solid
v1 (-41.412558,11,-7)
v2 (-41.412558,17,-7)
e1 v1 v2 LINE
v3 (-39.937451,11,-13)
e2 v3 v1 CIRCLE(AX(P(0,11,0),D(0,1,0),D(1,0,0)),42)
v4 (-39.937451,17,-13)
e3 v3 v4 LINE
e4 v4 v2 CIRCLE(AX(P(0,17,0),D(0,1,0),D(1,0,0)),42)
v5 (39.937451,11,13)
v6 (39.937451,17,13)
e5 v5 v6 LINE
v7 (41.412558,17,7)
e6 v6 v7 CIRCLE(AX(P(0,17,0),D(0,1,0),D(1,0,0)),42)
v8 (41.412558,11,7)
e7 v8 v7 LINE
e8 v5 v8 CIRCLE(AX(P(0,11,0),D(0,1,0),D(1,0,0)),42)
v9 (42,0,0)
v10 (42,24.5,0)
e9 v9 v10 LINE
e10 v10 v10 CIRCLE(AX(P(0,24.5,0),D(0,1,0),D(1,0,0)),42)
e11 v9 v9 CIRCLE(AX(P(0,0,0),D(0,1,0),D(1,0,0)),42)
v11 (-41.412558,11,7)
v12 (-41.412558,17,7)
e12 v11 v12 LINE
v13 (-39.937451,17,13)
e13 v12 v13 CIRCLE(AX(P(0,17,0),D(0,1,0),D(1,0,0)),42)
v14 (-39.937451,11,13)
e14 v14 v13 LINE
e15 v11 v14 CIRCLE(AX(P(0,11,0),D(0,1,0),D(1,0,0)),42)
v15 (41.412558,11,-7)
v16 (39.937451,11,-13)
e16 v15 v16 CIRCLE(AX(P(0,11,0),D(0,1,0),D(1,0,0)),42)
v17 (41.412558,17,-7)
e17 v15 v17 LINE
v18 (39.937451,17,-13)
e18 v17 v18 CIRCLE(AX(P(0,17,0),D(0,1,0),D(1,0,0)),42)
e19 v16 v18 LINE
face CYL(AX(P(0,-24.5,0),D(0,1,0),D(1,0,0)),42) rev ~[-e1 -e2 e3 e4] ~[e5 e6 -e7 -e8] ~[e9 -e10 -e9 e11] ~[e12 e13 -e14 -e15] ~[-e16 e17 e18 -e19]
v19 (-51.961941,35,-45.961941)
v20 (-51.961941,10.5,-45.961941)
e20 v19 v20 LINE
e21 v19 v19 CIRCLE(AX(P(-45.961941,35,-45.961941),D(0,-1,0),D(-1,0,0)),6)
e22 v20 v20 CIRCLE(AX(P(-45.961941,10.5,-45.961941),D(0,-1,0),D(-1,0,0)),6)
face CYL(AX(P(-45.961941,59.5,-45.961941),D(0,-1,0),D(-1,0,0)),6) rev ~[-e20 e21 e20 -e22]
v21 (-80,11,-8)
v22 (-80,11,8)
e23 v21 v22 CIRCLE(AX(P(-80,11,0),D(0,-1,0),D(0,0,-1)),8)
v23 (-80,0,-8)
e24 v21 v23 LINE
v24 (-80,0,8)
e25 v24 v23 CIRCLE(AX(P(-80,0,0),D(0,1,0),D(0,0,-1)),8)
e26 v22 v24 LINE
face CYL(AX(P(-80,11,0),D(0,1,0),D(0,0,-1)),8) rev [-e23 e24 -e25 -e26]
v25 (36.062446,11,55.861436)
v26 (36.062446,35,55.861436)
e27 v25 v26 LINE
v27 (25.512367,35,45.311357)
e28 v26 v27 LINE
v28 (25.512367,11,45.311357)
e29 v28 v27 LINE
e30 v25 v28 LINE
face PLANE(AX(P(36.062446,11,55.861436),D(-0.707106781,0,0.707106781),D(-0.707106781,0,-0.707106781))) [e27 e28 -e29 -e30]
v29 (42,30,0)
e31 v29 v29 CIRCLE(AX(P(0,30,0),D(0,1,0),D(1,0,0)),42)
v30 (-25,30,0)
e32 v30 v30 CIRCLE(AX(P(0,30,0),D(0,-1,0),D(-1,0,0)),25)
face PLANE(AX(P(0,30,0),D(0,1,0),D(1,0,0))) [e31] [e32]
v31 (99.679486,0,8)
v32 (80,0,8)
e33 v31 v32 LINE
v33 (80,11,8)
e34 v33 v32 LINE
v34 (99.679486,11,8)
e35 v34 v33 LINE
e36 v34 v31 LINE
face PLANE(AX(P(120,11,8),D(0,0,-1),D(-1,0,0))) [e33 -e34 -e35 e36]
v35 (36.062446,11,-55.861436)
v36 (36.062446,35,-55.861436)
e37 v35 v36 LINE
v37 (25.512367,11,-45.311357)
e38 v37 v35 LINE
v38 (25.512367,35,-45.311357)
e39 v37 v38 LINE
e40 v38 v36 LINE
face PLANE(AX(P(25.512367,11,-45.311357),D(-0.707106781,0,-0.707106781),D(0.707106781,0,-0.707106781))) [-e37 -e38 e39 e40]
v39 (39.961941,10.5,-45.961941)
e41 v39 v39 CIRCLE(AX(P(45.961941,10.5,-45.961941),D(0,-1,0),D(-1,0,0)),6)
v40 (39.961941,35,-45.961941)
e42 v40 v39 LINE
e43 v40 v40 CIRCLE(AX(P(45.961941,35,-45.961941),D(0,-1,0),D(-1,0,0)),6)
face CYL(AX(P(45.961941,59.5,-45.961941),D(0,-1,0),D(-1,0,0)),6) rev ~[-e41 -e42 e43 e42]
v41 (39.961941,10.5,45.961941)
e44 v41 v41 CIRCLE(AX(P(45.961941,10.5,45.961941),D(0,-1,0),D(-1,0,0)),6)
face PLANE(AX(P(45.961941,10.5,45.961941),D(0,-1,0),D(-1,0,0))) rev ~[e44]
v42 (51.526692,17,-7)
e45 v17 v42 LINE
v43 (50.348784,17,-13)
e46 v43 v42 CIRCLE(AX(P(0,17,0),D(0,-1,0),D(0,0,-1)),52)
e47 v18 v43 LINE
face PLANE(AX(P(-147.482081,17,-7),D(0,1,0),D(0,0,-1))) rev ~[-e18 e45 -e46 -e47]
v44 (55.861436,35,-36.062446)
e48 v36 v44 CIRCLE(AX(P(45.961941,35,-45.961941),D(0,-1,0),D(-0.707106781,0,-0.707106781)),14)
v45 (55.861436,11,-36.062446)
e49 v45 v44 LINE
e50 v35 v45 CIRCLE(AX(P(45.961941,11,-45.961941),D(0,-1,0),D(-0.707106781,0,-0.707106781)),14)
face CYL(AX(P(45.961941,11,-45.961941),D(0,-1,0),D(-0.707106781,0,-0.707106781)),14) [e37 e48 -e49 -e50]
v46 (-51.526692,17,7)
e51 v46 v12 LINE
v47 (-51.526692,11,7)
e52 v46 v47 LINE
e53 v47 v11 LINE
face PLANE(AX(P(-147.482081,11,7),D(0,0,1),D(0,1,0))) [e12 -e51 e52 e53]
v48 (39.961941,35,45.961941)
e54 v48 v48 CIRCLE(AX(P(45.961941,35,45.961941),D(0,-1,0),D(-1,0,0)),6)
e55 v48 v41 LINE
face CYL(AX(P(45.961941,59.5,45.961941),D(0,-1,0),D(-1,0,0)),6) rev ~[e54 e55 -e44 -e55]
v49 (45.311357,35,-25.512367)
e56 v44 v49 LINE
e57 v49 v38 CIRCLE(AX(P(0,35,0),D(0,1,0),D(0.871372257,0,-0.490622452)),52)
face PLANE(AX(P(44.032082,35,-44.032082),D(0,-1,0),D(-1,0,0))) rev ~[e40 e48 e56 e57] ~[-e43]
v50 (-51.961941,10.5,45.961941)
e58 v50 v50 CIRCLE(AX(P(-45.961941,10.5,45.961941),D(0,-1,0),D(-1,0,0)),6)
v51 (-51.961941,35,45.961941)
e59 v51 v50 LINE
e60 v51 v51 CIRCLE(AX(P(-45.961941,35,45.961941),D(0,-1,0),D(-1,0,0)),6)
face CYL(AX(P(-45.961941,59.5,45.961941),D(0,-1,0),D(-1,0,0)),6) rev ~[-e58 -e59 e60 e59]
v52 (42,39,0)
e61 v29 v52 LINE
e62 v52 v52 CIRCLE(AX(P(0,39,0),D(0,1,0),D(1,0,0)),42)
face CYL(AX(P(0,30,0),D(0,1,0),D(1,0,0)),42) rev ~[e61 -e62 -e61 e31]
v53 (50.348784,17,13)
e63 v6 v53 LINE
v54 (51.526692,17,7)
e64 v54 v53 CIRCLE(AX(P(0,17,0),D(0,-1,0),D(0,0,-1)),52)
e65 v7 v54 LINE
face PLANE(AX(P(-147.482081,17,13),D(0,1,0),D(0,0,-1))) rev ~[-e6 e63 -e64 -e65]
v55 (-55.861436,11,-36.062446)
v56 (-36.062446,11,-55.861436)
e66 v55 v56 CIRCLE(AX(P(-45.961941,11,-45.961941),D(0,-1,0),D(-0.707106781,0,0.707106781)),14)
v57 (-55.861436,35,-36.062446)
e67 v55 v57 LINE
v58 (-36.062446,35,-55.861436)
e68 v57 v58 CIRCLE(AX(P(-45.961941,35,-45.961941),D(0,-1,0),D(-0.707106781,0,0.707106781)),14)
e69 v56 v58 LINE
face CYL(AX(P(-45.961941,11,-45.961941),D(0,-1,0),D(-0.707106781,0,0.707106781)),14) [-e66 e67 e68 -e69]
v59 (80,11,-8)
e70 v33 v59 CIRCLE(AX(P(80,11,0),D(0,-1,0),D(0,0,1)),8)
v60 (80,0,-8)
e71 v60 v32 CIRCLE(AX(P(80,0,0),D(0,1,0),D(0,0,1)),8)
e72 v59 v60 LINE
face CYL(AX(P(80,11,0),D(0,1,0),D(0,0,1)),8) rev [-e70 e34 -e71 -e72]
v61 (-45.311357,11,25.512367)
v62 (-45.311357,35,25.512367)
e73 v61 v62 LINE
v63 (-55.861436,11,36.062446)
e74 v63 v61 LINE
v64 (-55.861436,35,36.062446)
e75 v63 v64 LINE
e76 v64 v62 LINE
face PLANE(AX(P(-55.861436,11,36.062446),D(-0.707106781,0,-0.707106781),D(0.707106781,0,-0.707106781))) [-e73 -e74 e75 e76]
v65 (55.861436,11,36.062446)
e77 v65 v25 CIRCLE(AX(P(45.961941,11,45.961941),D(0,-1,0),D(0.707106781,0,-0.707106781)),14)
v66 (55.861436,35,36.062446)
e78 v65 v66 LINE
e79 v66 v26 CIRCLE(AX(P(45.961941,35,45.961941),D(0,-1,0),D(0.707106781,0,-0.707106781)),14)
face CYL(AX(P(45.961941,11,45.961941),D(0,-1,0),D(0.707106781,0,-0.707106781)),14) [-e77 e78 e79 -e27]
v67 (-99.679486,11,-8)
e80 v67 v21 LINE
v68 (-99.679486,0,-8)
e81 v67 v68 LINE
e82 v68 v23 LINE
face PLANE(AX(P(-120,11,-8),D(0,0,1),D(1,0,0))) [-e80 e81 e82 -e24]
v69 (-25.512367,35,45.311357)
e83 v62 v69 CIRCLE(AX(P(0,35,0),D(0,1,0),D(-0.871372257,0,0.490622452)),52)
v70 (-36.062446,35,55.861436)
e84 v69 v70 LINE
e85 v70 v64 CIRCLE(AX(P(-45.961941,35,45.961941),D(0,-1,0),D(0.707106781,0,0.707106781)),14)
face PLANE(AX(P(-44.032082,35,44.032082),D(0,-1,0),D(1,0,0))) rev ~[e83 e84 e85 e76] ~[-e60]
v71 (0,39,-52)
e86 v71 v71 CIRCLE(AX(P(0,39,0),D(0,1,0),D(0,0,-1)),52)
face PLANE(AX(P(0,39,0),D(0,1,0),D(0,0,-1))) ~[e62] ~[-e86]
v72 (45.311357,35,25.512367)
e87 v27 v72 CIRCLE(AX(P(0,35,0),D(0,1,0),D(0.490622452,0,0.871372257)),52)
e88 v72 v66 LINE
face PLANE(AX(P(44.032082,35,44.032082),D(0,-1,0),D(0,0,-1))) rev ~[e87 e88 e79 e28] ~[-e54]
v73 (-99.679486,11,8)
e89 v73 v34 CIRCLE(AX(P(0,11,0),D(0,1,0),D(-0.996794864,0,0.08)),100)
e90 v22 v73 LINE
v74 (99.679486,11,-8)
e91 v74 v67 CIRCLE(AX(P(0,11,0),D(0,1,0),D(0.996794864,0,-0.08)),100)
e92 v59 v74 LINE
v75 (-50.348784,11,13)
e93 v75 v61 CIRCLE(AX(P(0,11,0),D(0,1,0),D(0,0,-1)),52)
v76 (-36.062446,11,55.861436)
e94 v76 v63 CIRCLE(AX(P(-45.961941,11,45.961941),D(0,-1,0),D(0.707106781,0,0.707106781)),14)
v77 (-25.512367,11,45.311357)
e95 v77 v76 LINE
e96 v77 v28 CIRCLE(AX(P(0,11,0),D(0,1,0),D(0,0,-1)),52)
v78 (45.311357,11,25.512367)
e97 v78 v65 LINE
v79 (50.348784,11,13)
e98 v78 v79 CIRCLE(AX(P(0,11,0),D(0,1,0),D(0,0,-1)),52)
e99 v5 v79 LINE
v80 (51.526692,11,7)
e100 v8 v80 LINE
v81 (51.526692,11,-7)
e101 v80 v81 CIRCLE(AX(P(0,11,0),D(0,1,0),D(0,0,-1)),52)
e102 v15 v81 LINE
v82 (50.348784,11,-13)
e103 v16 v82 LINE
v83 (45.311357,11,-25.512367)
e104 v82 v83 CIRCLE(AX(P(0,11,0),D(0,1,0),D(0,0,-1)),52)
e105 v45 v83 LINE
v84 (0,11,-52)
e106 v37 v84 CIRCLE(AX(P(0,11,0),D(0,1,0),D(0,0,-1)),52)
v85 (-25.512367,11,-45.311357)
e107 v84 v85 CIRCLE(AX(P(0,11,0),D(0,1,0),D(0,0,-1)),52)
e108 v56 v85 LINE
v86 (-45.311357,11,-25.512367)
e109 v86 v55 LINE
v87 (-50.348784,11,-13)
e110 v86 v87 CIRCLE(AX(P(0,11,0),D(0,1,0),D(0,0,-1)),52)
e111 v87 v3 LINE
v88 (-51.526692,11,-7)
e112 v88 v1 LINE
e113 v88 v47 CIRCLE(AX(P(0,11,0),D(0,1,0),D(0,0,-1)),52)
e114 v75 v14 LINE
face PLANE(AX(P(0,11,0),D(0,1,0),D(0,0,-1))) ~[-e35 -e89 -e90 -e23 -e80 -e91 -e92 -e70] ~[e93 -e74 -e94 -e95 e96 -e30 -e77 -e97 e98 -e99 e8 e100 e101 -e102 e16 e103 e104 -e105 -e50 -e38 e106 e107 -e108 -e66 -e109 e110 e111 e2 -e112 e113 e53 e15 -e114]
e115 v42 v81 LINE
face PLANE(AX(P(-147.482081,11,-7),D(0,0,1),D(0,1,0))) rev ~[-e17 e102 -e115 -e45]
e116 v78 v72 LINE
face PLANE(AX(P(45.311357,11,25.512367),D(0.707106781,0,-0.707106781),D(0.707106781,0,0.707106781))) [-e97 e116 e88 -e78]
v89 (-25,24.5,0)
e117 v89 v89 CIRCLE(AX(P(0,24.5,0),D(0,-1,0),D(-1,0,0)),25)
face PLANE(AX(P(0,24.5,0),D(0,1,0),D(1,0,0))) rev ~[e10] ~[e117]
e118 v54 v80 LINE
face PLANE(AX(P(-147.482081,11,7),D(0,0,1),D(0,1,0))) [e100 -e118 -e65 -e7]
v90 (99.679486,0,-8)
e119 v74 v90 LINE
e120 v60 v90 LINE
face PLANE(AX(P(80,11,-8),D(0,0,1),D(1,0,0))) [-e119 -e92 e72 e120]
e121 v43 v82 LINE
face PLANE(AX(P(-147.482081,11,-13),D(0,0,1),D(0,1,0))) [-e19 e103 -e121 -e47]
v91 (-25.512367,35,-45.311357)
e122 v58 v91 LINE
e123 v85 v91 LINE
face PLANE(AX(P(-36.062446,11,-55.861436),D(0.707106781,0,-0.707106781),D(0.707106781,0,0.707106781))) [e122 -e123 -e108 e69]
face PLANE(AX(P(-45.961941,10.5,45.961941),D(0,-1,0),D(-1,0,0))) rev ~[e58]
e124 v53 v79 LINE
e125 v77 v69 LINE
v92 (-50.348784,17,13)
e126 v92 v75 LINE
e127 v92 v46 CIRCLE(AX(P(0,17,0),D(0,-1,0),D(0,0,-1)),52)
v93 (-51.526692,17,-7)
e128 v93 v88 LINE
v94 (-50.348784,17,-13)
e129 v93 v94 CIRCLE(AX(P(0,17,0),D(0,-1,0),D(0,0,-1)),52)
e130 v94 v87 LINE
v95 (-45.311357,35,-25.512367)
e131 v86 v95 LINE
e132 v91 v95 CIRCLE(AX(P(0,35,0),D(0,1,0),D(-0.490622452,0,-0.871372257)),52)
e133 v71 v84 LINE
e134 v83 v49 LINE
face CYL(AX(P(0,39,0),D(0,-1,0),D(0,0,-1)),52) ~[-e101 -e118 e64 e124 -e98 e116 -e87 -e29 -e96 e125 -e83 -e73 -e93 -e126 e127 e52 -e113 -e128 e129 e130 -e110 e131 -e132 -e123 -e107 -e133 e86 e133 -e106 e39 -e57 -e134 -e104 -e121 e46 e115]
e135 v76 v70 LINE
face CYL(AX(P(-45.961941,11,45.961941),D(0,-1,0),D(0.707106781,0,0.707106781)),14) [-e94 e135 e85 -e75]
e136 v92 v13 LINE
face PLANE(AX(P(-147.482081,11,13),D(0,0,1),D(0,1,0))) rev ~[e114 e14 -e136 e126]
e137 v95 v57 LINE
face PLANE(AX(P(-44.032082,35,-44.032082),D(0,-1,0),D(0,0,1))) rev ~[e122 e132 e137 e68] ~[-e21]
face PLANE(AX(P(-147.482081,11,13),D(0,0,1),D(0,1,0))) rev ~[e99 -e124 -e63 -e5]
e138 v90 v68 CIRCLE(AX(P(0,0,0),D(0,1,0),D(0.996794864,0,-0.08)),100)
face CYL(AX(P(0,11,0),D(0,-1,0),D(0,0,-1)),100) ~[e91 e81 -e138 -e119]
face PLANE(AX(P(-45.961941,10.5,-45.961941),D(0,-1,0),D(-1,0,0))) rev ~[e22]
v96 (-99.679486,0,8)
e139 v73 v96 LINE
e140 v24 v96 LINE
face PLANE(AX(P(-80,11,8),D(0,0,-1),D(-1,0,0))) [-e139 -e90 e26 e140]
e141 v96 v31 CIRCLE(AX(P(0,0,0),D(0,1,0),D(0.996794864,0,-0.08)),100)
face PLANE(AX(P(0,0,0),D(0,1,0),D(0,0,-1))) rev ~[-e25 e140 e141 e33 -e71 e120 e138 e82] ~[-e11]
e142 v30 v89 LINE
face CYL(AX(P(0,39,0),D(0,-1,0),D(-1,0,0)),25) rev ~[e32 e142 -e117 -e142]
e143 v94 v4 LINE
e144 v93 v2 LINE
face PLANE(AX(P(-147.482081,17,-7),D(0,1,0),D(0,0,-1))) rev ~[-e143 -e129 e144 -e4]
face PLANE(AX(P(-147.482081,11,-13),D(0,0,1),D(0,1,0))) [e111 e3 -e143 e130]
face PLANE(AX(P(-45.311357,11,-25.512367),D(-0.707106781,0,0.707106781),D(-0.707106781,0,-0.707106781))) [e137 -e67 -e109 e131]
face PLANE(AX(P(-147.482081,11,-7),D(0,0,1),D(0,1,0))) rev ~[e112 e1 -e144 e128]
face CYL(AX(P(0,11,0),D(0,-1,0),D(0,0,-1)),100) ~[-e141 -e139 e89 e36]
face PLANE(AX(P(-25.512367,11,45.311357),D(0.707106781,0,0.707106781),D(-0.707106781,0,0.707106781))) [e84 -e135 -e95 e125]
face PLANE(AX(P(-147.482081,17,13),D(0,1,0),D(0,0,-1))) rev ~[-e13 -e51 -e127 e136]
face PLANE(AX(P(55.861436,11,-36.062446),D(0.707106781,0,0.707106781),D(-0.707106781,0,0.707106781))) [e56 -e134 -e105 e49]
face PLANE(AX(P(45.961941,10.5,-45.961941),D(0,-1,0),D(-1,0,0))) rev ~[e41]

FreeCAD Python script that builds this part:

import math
import FreeCAD as App
import Part
import Sketcher

V = App.Vector
Q = App.Units.Quantity


def add_polygon(sketch, points):
    """Adds a closed chain of lines whose ends are joined by coincident constraints."""
    first, n = sketch.GeometryCount, len(points)
    for a, b in zip(points, points[1:] + points[:1]):
        sketch.addGeometry(Part.LineSegment(App.Vector(*a, 0), App.Vector(*b, 0)), False)
    for i in range(n):
        sketch.addConstraint(Sketcher.Constraint("Coincident", first + i, 2, first + (i + 1) % n, 1))

doc = App.newDocument("Part")
body = doc.addObject("PartDesign::Body", "Body")

sketch1 = body.newObject("Sketcher::SketchObject", "Sketch")
sketch1.AttachmentSupport = (doc.getObject("XY_Plane"), [""])
sketch1.MapMode = "FlatFace"
add_polygon(sketch1, [(0, 0), (0, 39), (-52, 39), (-52, 11), (-100, 11), (-100, 0)])
sketch1.addConstraint(Sketcher.Constraint("Vertical", 0))
sketch1.addConstraint(Sketcher.Constraint("Horizontal", 1))
sketch1.addConstraint(Sketcher.Constraint("Vertical", 2))
sketch1.addConstraint(Sketcher.Constraint("Horizontal", 3))
sketch1.addConstraint(Sketcher.Constraint("Vertical", 4))
sketch1.addConstraint(Sketcher.Constraint("Horizontal", 5))
sketch1.addConstraint(Sketcher.Constraint("Coincident", 5, 2, -1, 1))
sketch1.addConstraint(Sketcher.Constraint("DistanceX", 1, 2, 1, 1, Q("52 mm")))
sketch1.addConstraint(Sketcher.Constraint("DistanceX", 3, 2, 3, 1, Q("48 mm")))
sketch1.addConstraint(Sketcher.Constraint("DistanceY", 0, 1, 0, 2, Q("39 mm")))
sketch1.addConstraint(Sketcher.Constraint("DistanceY", 2, 2, 2, 1, Q("28 mm")))
revolution = body.newObject("PartDesign::Revolution", "Revolution")
revolution.Profile = sketch1
revolution.ReferenceAxis = (sketch1, ["V_Axis"])
revolution.Angle = 360

sketch2 = body.newObject("Sketcher::SketchObject", "Sketch001")
sketch2.AttachmentSupport = (doc.getObject("XZ_Plane"), [""])
sketch2.MapMode = "FlatFace"
sketch2.AttachmentOffset = App.Placement(V(0, 0, -39), App.Rotation())
sketch2.addGeometry(Part.Circle(V(0, 0, 0), V(0, 0, 1), 25), False)
sketch2.addConstraint(Sketcher.Constraint("Coincident", 0, 3, -1, 1))
sketch2.addConstraint(Sketcher.Constraint("Diameter", 0, Q("50 mm")))
doc.recompute()
hole = body.newObject("PartDesign::Hole", "Hole")
hole.Profile = sketch2
hole.ThreadType = "None"
hole.Diameter = 50
hole.DepthType = "ThroughAll"
hole.HoleCutType = "Counterbore"
hole.HoleCutDiameter = 84
hole.HoleCutDepth = 9
hole.Reversed = True

sketch3 = body.newObject("Sketcher::SketchObject", "Sketch002")
sketch3.AttachmentSupport = (doc.getObject("XZ_Plane"), [""])
sketch3.MapMode = "FlatFace"
sketch3.addGeometry(Part.Circle(V(0, 0, 0), V(0, 0, 1), 42), False)
sketch3.addConstraint(Sketcher.Constraint("Coincident", 0, 3, -1, 1))
sketch3.addConstraint(Sketcher.Constraint("Diameter", 0, Q("84 mm")))
doc.recompute()
hole2 = body.newObject("PartDesign::Hole", "Hole001")
hole2.Profile = sketch3
hole2.ThreadType = "None"
hole2.Diameter = 84
hole2.DepthType = "Dimension"
hole2.Depth = 24.5
hole2.DrillPoint = "Flat"

sketch4 = body.newObject("Sketcher::SketchObject", "Sketch003")
sketch4.AttachmentSupport = (doc.getObject("XZ_Plane"), [""])
sketch4.MapMode = "FlatFace"
sketch4.AttachmentOffset = App.Placement(V(0, 0, -11), App.Rotation())
sketch4.addGeometry(Part.LineSegment(V(36, -56, 0), V(26, -45, 0)), False)
sketch4.addGeometry(Part.ArcOfCircle(Part.Circle(V(0, 0, 0), V(0, 0, 1), 52), math.radians(-61), math.radians(-29)), False)
sketch4.addGeometry(Part.LineSegment(V(45, -26, 0), V(56, -36, 0)), False)
sketch4.addGeometry(Part.ArcOfCircle(Part.Circle(V(46, -46, 0), V(0, 0, 1), 14), math.radians(-135), math.radians(45)), False)
sketch4.addConstraint(Sketcher.Constraint("Coincident", 0, 2, 1, 1))
sketch4.addConstraint(Sketcher.Constraint("Coincident", 1, 2, 2, 1))
sketch4.addConstraint(Sketcher.Constraint("Tangent", 2, 2, 3, 2))
sketch4.addConstraint(Sketcher.Constraint("Tangent", 3, 1, 0, 1))
sketch4.addConstraint(Sketcher.Constraint("Coincident", 1, 3, -1, 1))
sketch4.addConstraint(Sketcher.Constraint("Parallel", 0, 2))
sketch4.addConstraint(Sketcher.Constraint("Equal", 0, 2))
sketch4.addConstraint(Sketcher.Constraint("Radius", 1, Q("52 mm")))
sketch4.addConstraint(Sketcher.Constraint("Radius", 3, Q("14 mm")))
sketch4.addConstraint(Sketcher.Constraint("Angle", 0, Q("135 deg")))
sketch4.addConstraint(Sketcher.Constraint("DistanceX", -1, 1, 3, 3, Q("45.961941 mm")))
pad1 = body.newObject("PartDesign::Pad", "Pad")
pad1.Profile = sketch4
pad1.Length = 24
pad1.Reversed = True
doc.recompute()

polarpattern = body.newObject("PartDesign::PolarPattern", "PolarPattern")
polarpattern.Originals = [pad1]
polarpattern.Axis = (doc.getObject("Y_Axis"), [""])
polarpattern.Angle = 360
polarpattern.Occurrences = 4
body.Tip = polarpattern

sketch5 = body.newObject("Sketcher::SketchObject", "Sketch004")
sketch5.AttachmentSupport = (doc.getObject("XZ_Plane"), [""])
sketch5.MapMode = "FlatFace"
sketch5.AttachmentOffset = App.Placement(V(0, 0, -35), App.Rotation())
sketch5.addGeometry(Part.Circle(V(46, -46, 0), V(0, 0, 1), 6), False)
sketch5.addGeometry(Part.Circle(V(46, 46, 0), V(0, 0, 1), 6), False)
sketch5.addGeometry(Part.Circle(V(-46, 46, 0), V(0, 0, 1), 6), False)
sketch5.addGeometry(Part.Circle(V(-46, -46, 0), V(0, 0, 1), 6), False)
sketch5.addConstraint(Sketcher.Constraint("Equal", 0, 1))
sketch5.addConstraint(Sketcher.Constraint("Equal", 1, 2))
sketch5.addConstraint(Sketcher.Constraint("Equal", 2, 3))
sketch5.addConstraint(Sketcher.Constraint("Symmetric", 0, 3, 2, 3, -1, 1))
sketch5.addConstraint(Sketcher.Constraint("Symmetric", 1, 3, 3, 3, -1, 1))
sketch5.addConstraint(Sketcher.Constraint("Symmetric", 1, 3, 2, 3, -2))
sketch5.addConstraint(Sketcher.Constraint("Diameter", 0, Q("12 mm")))
sketch5.addConstraint(Sketcher.Constraint("DistanceX", -1, 1, 0, 3, Q("45.961941 mm")))
sketch5.addConstraint(Sketcher.Constraint("DistanceY", 0, 3, -1, 1, Q("45.961941 mm")))
doc.recompute()
hole3 = body.newObject("PartDesign::Hole", "Hole002")
hole3.Profile = sketch5
hole3.ThreadType = "None"
hole3.Diameter = 12
hole3.DepthType = "Dimension"
hole3.Depth = 24.5
hole3.DrillPoint = "Flat"
hole3.Reversed = True

sketch6 = body.newObject("Sketcher::SketchObject", "Sketch005")
sketch6.AttachmentSupport = (doc.getObject("XZ_Plane"), [""])
sketch6.MapMode = "FlatFace"
sketch6.AttachmentOffset = App.Placement(V(0, 0, -11), App.Rotation())
sketch6.addGeometry(Part.LineSegment(V(120, -8, 0), V(80, -8, 0)), False)
sketch6.addGeometry(Part.ArcOfCircle(Part.Circle(V(80, 0, 0), V(0, 0, 1), 8), math.radians(90), math.radians(270)), False)
sketch6.addGeometry(Part.LineSegment(V(80, 8, 0), V(120, 8, 0)), False)
sketch6.addGeometry(Part.ArcOfCircle(Part.Circle(V(120, 0, 0), V(0, 0, 1), 8), math.radians(-90), math.radians(90)), False)
sketch6.addConstraint(Sketcher.Constraint("Tangent", 0, 2, 1, 2))
sketch6.addConstraint(Sketcher.Constraint("Tangent", 1, 1, 2, 1))
sketch6.addConstraint(Sketcher.Constraint("Tangent", 2, 2, 3, 2))
sketch6.addConstraint(Sketcher.Constraint("Tangent", 3, 1, 0, 1))
sketch6.addConstraint(Sketcher.Constraint("Horizontal", 0))
sketch6.addConstraint(Sketcher.Constraint("Horizontal", 2))
sketch6.addConstraint(Sketcher.Constraint("PointOnObject", 1, 3, -1))
sketch6.addConstraint(Sketcher.Constraint("Radius", 1, Q("8 mm")))
sketch6.addConstraint(Sketcher.Constraint("DistanceX", 0, 2, 0, 1, Q("40 mm")))
sketch6.addConstraint(Sketcher.Constraint("DistanceX", -1, 1, 1, 3, Q("80 mm")))
pocket1 = body.newObject("PartDesign::Pocket", "Pocket")
pocket1.Profile = sketch6
pocket1.Length = 24
pocket1.Reversed = True
doc.recompute()

polarpattern2 = body.newObject("PartDesign::PolarPattern", "PolarPattern001")
polarpattern2.Originals = [pocket1]
polarpattern2.Axis = (doc.getObject("Y_Axis"), [""])
polarpattern2.Angle = 360
polarpattern2.Occurrences = 2
body.Tip = polarpattern2

sketch7 = body.newObject("Sketcher::SketchObject", "Sketch006")
sketch7.AttachmentSupport = (doc.getObject("YZ_Plane"), [""])
sketch7.MapMode = "FlatFace"
add_polygon(sketch7, [(17, 13), (11, 13), (11, 7), (17, 7)])
add_polygon(sketch7, [(17, -7), (11, -7), (11, -13), (17, -13)])
sketch7.addConstraint(Sketcher.Constraint("Horizontal", 0))
sketch7.addConstraint(Sketcher.Constraint("Vertical", 1))
sketch7.addConstraint(Sketcher.Constraint("Horizontal", 2))
sketch7.addConstraint(Sketcher.Constraint("Vertical", 3))
sketch7.addConstraint(Sketcher.Constraint("Horizontal", 4))
sketch7.addConstraint(Sketcher.Constraint("Vertical", 5))
sketch7.addConstraint(Sketcher.Constraint("Horizontal", 6))
sketch7.addConstraint(Sketcher.Constraint("Vertical", 7))
sketch7.addConstraint(Sketcher.Constraint("Symmetric", 1, 2, 4, 2, -1))
sketch7.addConstraint(Sketcher.Constraint("Symmetric", 3, 2, 6, 2, -1))
sketch7.addConstraint(Sketcher.Constraint("Equal", 6, 1))
sketch7.addConstraint(Sketcher.Constraint("DistanceX", 0, 2, 0, 1, Q("6 mm")))
sketch7.addConstraint(Sketcher.Constraint("DistanceX", -1, 1, 0, 2, Q("11 mm")))
sketch7.addConstraint(Sketcher.Constraint("DistanceY", -1, 1, 0, 2, Q("13 mm")))
pocket2 = body.newObject("PartDesign::Pocket", "Pocket001")
pocket2.Profile = sketch7
pocket2.Type = "ThroughAll"
pocket2.Midplane = True

doc.recompute()
